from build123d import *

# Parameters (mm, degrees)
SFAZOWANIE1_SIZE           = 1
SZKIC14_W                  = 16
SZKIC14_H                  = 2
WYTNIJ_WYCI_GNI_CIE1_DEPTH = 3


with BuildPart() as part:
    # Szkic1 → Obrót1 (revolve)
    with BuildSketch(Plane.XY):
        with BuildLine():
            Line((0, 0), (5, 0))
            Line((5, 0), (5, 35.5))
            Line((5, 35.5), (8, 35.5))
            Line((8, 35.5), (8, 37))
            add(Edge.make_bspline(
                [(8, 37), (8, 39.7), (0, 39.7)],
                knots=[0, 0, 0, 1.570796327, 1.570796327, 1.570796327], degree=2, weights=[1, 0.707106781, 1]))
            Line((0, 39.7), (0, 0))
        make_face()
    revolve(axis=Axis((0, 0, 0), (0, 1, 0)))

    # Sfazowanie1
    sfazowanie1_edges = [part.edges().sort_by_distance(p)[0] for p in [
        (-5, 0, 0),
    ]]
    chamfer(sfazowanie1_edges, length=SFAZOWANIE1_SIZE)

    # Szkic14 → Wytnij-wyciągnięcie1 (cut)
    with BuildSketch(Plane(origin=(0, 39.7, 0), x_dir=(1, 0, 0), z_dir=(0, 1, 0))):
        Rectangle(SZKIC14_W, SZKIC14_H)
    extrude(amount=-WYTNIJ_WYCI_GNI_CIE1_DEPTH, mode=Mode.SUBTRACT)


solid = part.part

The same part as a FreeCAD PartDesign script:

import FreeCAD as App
import Part
import Sketcher


def edges_at(feature, points):
    """Names of the edges that pass closest to the given points."""
    edges = feature.Shape.Edges
    near = lambda p: min(range(len(edges)), key=lambda i: edges[i].distToShape(Part.Vertex(*p))[0])
    return sorted({f"Edge{near(p) + 1}" for p in points})


def add_polygon(sketch, points):
    """Adds a closed chain of lines whose ends are joined by coincident constraints."""
    first, n = sketch.GeometryCount, len(points)
    for a, b in zip(points, points[1:] + points[:1]):
        sketch.addGeometry(Part.LineSegment(App.Vector(*a, 0), App.Vector(*b, 0)), False)
    for i in range(n):
        sketch.addConstraint(Sketcher.Constraint("Coincident", first + i, 2, first + (i + 1) % n, 1))

doc = App.newDocument("Part")
body = doc.addObject("PartDesign::Body", "Body")

sketch1 = doc.addObject("Sketcher::SketchObject", "Sketch")
body.addObject(sketch1)
sketch1.AttachmentSupport = (doc.XY_Plane, [""])
sketch1.MapMode = "FlatFace"
sketch1.addGeometry([
    Part.LineSegment(App.Vector(0, 0, 0), App.Vector(5, 0, 0)),
    Part.LineSegment(App.Vector(5, 0, 0), App.Vector(5, 35.5, 0)),
    Part.LineSegment(App.Vector(5, 35.5, 0), App.Vector(8, 35.5, 0)),
    Part.LineSegment(App.Vector(8, 35.5, 0), App.Vector(8, 37, 0)),
    Part.BSplineCurve([App.Vector(8, 37, 0), App.Vector(8, 39.7, 0), App.Vector(0, 39.7, 0)], [3, 3], [0, 1.570796327], False, 2, [1, 0.707106781, 1], False),
    Part.LineSegment(App.Vector(0, 39.7, 0), App.Vector(0, 0, 0)),
], False)
sketch1.addConstraint([
    Sketcher.Constraint("Block", 4),
    Sketcher.Constraint("Coincident", 0, 2, 1, 1),
    Sketcher.Constraint("Coincident", 1, 2, 2, 1),
    Sketcher.Constraint("Coincident", 2, 2, 3, 1),
    Sketcher.Constraint("Coincident", 3, 2, 4, 1),
    Sketcher.Constraint("Coincident", 4, 2, 5, 1),
    Sketcher.Constraint("Coincident", 5, 2, 0, 1),
    Sketcher.Constraint("Horizontal", 0),
    Sketcher.Constraint("Vertical", 1),
    Sketcher.Constraint("Horizontal", 2),
    Sketcher.Constraint("Vertical", 3),
    Sketcher.Constraint("Vertical", 5),
    Sketcher.Constraint("PointOnObject", 0, 2, -1),
    Sketcher.Constraint("DistanceX", 0, 1, 0, 2, 5.0),
    Sketcher.Constraint("DistanceY", 1, 1, 1, 2, 35.5),
])
revolution = doc.addObject("PartDesign::Revolution", "Revolution")
body.addObject(revolution)
revolution.Profile = sketch1
revolution.ReferenceAxis = (sketch1, ["V_Axis"])
revolution.Angle = 360
doc.recompute()

chamfer = doc.addObject("PartDesign::Chamfer", "Chamfer")
body.addObject(chamfer)
chamfer.Base = (revolution, edges_at(revolution, [(-5, 0, 0)]))
chamfer.Size = 1

sketch2 = doc.addObject("Sketcher::SketchObject", "Sketch001")
body.addObject(sketch2)
sketch2.AttachmentSupport = (doc.XZ_Plane, [""])
sketch2.MapMode = "FlatFace"
sketch2.AttachmentOffset = App.Placement(App.Vector(0, 0, -39.7), App.Rotation())
add_polygon(sketch2, [(-8, -1), (-8, 1), (8, 1), (8, -1)])
sketch2.addConstraint([
    Sketcher.Constraint("Vertical", 0),
    Sketcher.Constraint("Horizontal", 1),
    Sketcher.Constraint("Vertical", 2),
    Sketcher.Constraint("Horizontal", 3),
    Sketcher.Constraint("Symmetric", 0, 2, 2, 2, -1, 1),
    Sketcher.Constraint("DistanceX", 1, 1, 1, 2, 16.0),
    Sketcher.Constraint("DistanceY", 0, 1, 0, 2, 2.0),
])
pocket1 = doc.addObject("PartDesign::Pocket", "Pocket")
body.addObject(pocket1)
pocket1.Profile = sketch2
pocket1.Length = 3
pocket1.Reversed = True

doc.recompute()
